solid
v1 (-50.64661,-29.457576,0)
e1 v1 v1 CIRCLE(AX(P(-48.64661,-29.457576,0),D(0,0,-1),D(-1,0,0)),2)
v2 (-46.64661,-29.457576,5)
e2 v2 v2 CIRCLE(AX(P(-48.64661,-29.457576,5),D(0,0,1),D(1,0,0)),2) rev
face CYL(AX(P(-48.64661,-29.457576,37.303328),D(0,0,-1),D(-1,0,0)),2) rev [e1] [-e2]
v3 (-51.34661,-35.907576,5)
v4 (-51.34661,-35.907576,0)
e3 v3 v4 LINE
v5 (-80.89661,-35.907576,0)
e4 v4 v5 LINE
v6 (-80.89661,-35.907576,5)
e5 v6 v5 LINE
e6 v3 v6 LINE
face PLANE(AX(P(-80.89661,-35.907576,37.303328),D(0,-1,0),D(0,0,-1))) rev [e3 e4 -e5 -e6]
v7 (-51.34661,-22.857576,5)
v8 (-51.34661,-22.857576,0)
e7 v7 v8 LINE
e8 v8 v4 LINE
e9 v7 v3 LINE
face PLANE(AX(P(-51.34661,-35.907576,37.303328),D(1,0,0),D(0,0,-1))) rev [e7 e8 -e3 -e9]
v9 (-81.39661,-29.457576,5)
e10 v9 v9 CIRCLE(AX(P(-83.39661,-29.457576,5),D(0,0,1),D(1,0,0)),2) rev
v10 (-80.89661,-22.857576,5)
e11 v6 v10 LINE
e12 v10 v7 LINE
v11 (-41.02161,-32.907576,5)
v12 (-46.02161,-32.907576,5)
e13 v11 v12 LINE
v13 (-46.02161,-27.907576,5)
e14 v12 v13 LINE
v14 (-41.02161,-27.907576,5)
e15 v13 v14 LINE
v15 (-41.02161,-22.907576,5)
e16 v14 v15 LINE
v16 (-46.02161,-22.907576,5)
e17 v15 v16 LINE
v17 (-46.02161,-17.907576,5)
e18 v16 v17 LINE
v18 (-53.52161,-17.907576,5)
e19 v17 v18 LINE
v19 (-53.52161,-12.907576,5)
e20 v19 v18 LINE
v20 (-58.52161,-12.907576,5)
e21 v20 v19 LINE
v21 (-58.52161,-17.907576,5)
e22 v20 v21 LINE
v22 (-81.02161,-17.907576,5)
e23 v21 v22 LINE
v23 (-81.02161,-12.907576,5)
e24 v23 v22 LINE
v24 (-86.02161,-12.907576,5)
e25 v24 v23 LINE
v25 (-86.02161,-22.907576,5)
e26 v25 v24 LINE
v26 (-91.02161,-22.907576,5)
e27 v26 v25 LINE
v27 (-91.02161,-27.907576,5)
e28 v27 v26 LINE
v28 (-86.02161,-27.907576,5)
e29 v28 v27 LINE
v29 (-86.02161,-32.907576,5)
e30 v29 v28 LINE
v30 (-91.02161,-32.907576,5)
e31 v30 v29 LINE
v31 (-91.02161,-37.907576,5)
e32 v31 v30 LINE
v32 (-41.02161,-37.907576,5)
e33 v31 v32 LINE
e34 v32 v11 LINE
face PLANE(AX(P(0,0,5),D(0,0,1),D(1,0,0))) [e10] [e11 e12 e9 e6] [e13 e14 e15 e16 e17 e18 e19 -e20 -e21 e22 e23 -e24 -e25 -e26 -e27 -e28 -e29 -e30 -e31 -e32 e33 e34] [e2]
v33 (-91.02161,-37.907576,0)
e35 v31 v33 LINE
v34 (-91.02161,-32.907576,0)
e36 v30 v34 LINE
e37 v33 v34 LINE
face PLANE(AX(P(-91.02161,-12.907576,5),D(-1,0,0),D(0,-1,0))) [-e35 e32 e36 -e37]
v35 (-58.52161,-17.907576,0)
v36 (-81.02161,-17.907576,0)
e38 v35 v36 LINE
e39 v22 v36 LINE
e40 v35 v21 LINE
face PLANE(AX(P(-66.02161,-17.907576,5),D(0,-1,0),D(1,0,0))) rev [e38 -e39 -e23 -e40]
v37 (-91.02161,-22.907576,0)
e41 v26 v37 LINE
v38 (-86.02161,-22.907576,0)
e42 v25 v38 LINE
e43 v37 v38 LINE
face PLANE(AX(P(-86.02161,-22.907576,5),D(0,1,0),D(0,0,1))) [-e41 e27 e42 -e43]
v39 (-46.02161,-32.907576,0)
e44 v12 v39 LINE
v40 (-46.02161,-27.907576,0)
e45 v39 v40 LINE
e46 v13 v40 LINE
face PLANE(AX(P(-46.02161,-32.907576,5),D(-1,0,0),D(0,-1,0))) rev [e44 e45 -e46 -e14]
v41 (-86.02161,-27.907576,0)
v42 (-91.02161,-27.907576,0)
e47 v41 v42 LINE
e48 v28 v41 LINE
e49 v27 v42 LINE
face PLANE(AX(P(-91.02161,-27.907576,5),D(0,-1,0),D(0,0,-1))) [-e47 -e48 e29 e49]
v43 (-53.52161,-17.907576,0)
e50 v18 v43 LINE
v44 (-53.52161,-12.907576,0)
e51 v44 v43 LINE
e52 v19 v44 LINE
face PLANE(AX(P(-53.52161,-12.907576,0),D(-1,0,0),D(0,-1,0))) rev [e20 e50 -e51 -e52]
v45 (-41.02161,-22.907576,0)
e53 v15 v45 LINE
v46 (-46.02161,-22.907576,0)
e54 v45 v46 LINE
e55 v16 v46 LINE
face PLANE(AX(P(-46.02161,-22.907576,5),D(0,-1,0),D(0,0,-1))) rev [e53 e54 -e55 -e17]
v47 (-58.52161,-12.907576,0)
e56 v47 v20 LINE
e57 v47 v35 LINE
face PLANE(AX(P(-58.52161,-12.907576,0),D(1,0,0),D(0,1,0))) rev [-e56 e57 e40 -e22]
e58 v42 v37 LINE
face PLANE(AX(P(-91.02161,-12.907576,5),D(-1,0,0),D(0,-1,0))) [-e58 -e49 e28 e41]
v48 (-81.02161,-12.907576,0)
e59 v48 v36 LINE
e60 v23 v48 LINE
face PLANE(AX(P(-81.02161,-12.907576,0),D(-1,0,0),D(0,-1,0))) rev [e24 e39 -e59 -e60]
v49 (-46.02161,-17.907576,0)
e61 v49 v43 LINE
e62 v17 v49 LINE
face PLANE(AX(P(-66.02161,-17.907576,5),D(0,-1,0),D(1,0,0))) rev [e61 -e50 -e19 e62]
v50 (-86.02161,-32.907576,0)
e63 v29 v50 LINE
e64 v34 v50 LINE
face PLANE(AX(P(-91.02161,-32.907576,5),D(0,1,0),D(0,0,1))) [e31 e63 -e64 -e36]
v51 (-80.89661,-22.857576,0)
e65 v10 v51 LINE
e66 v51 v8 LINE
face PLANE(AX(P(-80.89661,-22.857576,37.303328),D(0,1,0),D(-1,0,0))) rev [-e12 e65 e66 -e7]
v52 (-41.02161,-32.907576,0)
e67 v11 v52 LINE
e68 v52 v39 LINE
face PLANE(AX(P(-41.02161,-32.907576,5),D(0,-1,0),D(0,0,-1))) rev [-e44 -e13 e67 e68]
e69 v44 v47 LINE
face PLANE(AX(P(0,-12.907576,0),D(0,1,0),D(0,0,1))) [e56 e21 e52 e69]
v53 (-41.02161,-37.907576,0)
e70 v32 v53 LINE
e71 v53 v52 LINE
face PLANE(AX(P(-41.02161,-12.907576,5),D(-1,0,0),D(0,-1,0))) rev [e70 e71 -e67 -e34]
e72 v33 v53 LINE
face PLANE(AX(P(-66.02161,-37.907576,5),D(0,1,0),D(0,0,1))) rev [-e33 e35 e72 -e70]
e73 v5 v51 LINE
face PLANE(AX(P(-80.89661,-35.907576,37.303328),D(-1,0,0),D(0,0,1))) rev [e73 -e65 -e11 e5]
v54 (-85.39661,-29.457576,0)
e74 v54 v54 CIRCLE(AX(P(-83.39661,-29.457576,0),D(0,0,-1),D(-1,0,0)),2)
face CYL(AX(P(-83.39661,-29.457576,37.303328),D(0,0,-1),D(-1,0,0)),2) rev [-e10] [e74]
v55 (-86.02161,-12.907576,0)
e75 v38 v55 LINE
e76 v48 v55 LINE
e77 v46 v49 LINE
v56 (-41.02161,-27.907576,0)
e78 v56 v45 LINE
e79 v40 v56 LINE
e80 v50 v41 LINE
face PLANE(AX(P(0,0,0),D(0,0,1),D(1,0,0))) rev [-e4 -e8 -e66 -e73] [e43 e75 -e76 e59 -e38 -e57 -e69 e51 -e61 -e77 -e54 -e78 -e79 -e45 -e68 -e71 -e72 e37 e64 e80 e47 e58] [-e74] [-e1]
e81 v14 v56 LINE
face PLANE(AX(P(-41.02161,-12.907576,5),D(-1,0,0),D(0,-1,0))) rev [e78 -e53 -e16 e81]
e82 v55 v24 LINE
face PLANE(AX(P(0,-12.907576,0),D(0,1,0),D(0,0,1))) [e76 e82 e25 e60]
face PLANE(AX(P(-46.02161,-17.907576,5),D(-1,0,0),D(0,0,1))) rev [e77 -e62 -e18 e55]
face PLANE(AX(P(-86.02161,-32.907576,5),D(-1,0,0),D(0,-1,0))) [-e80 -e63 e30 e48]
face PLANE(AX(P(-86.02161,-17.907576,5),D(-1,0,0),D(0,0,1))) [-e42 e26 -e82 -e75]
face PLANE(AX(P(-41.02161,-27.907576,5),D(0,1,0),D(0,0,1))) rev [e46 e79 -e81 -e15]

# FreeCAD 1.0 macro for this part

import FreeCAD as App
import Part
import Sketcher
Q = App.Units.Quantity


def add_polygon(sketch, points):
    """Adds a closed chain of lines whose ends are joined by coincident constraints."""
    first, n = sketch.GeometryCount, len(points)
    for a, b in zip(points, points[1:] + points[:1]):
        sketch.addGeometry(Part.LineSegment(App.Vector(*a, 0), App.Vector(*b, 0)), False)
    for i in range(n):
        sketch.addConstraint(Sketcher.Constraint("Coincident", first + i, 2, first + (i + 1) % n, 1))

doc = App.newDocument("Part")
body = doc.addObject("PartDesign::Body", "Body")

sketch1 = doc.addObject("Sketcher::SketchObject", "Sketch")
body.addObject(sketch1)
sketch1.AttachmentSupport = (doc.XY_Plane, [""])
sketch1.MapMode = "FlatFace"
add_polygon(sketch1, [(-66, -13), (-66, -38), (-41, -38), (-41, -13)])
sketch1.addConstraint(Sketcher.Constraint("Vertical", 0))
sketch1.addConstraint(Sketcher.Constraint("Horizontal", 1))
sketch1.addConstraint(Sketcher.Constraint("Vertical", 2))
sketch1.addConstraint(Sketcher.Constraint("Horizontal", 3))
sketch1.addConstraint(Sketcher.Constraint("Equal", 3, 0))
sketch1.addConstraint(Sketcher.Constraint("DistanceX", 1, 1, 1, 2, Q("25 mm")))
sketch1.addConstraint(Sketcher.Constraint("DistanceX", 0, 2, -1, 1, Q("66.02161 mm")))
sketch1.addConstraint(Sketcher.Constraint("DistanceY", 0, 2, -1, 1, Q("37.907576 mm")))
pad1 = doc.addObject("PartDesign::Pad", "Pad")
body.addObject(pad1)
pad1.Profile = sketch1
pad1.Length = 5

sketch2 = doc.addObject("Sketcher::SketchObject", "Sketch001")
body.addObject(sketch2)
sketch2.AttachmentSupport = (doc.XY_Plane, [""])
sketch2.MapMode = "FlatFace"
add_polygon(sketch2, [(-66, -18), (-66, -13), (-41, -13), (-41, -23), (-46, -23), (-46, -18)])
add_polygon(sketch2, [(-41, -28), (-41, -33), (-46, -33), (-46, -28)])
sketch2.addConstraint(Sketcher.Constraint("Vertical", 0))
sketch2.addConstraint(Sketcher.Constraint("Horizontal", 1))
sketch2.addConstraint(Sketcher.Constraint("Vertical", 2))
sketch2.addConstraint(Sketcher.Constraint("Horizontal", 3))
sketch2.addConstraint(Sketcher.Constraint("Vertical", 4))
sketch2.addConstraint(Sketcher.Constraint("Horizontal", 5))
sketch2.addConstraint(Sketcher.Constraint("Vertical", 6))
sketch2.addConstraint(Sketcher.Constraint("Horizontal", 7))
sketch2.addConstraint(Sketcher.Constraint("Vertical", 8))
sketch2.addConstraint(Sketcher.Constraint("Horizontal", 9))
sketch2.addConstraint(Sketcher.Constraint("Vertical", 2, 2, 6, 2))
sketch2.addConstraint(Sketcher.Constraint("Vertical", 4, 2, 7, 2))
sketch2.addConstraint(Sketcher.Constraint("Equal", 9, 0))
sketch2.addConstraint(Sketcher.Constraint("Equal", 0, 4))
sketch2.addConstraint(Sketcher.Constraint("Equal", 4, 6))
sketch2.addConstraint(Sketcher.Constraint("DistanceX", 1, 1, 1, 2, Q("25 mm")))
sketch2.addConstraint(Sketcher.Constraint("DistanceX", 3, 2, 3, 1, Q("5 mm")))
sketch2.addConstraint(Sketcher.Constraint("DistanceY", 6, 2, 2, 2, Q("10 mm")))
sketch2.addConstraint(Sketcher.Constraint("DistanceX", 0, 2, -1, 1, Q("66.02161 mm")))
sketch2.addConstraint(Sketcher.Constraint("DistanceY", 0, 2, -1, 1, Q("12.907576 mm")))
pocket1 = doc.addObject("PartDesign::Pocket", "Pocket")
body.addObject(pocket1)
pocket1.Profile = sketch2
pocket1.Length = 5
pocket1.Reversed = True
doc.recompute()

datumplane = doc.addObject("PartDesign::Plane", "DatumPlane")
body.addObject(datumplane)
datumplane.AttachmentSupport = (doc.YZ_Plane, [""])
datumplane.MapMode = "FlatFace"
datumplane.AttachmentOffset = App.Placement(App.Vector(0, 0, -66.02161), App.Rotation())
mirrored = doc.addObject("PartDesign::Mirrored", "Mirrored")
body.addObject(mirrored)
mirrored.Originals = [pad1, pocket1]
mirrored.MirrorPlane = (datumplane, [""])
body.Tip = mirrored

sketch3 = doc.addObject("Sketcher::SketchObject", "Sketch002")
body.addObject(sketch3)
sketch3.AttachmentSupport = (doc.XY_Plane, [""])
sketch3.MapMode = "FlatFace"
sketch3.addGeometry(Part.Circle(App.Vector(-83.4, -29.5, 0), App.Vector(0, 0, 1), 2), False)
sketch3.addGeometry(Part.Circle(App.Vector(-48.6, -29.5, 0), App.Vector(0, 0, 1), 2), False)
add_polygon(sketch3, [(-51.3, -22.9), (-51.3, -35.9), (-80.9, -35.9), (-80.9, -22.9)])
sketch3.addConstraint(Sketcher.Constraint("Vertical", 2))
sketch3.addConstraint(Sketcher.Constraint("Horizontal", 3))
sketch3.addConstraint(Sketcher.Constraint("Vertical", 4))
sketch3.addConstraint(Sketcher.Constraint("Horizontal", 5))
sketch3.addConstraint(Sketcher.Constraint("Equal", 0, 1))
sketch3.addConstraint(Sketcher.Constraint("Horizontal", 0, 3, 1, 3))
sketch3.addConstraint(Sketcher.Constraint("Diameter", 0, Q("4 mm")))
sketch3.addConstraint(Sketcher.Constraint("DistanceX", 3, 2, 3, 1, Q("29.55 mm")))
sketch3.addConstraint(Sketcher.Constraint("DistanceY", 2, 2, 2, 1, Q("13.05 mm")))
sketch3.addConstraint(Sketcher.Constraint("DistanceX", 2, 2, 1, 3, Q("2.7 mm")))
sketch3.addConstraint(Sketcher.Constraint("DistanceX", 0, 3, 3, 2, Q("2.5 mm")))
sketch3.addConstraint(Sketcher.Constraint("DistanceY", 0, 3, 4, 2, Q("6.6 mm")))
sketch3.addConstraint(Sketcher.Constraint("DistanceX", 0, 3, -1, 1, Q("83.39661 mm")))
sketch3.addConstraint(Sketcher.Constraint("DistanceY", 0, 3, -1, 1, Q("29.457576 mm")))
pocket2 = doc.addObject("PartDesign::Pocket", "Pocket001")
body.addObject(pocket2)
pocket2.Profile = sketch3
pocket2.Length = 5
pocket2.Reversed = True

sketch4 = doc.addObject("Sketcher::SketchObject", "Sketch003")
body.addObject(sketch4)
sketch4.AttachmentSupport = (doc.XZ_Plane, [""])
sketch4.MapMode = "FlatFace"
sketch4.AttachmentOffset = App.Placement(App.Vector(0, 0, 17.907576), App.Rotation())
add_polygon(sketch4, [(-86, 0), (-86, 5), (-81, 5), (-81, 0)])
add_polygon(sketch4, [(-59, 0), (-59, 5), (-54, 5), (-54, 0)])
sketch4.addConstraint(Sketcher.Constraint("Vertical", 0))
sketch4.addConstraint(Sketcher.Constraint("Horizontal", 1))
sketch4.addConstraint(Sketcher.Constraint("Vertical", 2))
sketch4.addConstraint(Sketcher.Constraint("Horizontal", 3))
sketch4.addConstraint(Sketcher.Constraint("Vertical", 4))
sketch4.addConstraint(Sketcher.Constraint("Horizontal", 5))
sketch4.addConstraint(Sketcher.Constraint("Vertical", 6))
sketch4.addConstraint(Sketcher.Constraint("Horizontal", 7))
sketch4.addConstraint(Sketcher.Constraint("PointOnObject", 2, 2, -1))
sketch4.addConstraint(Sketcher.Constraint("PointOnObject", 6, 2, -1))
sketch4.addConstraint(Sketcher.Constraint("Horizontal", 1, 2, 4, 2))
sketch4.addConstraint(Sketcher.Constraint("Equal", 3, 5))
sketch4.addConstraint(Sketcher.Constraint("Equal", 7, 0))
sketch4.addConstraint(Sketcher.Constraint("DistanceX", 1, 1, 1, 2, Q("5 mm")))
sketch4.addConstraint(Sketcher.Constraint("DistanceX", 1, 2, 4, 2, Q("22.5 mm")))
sketch4.addConstraint(Sketcher.Constraint("DistanceX", 0, 2, -1, 1, Q("86.02161 mm")))
pad2 = doc.addObject("PartDesign::Pad", "Pad001")
body.addObject(pad2)
pad2.Profile = sketch4
pad2.Length = 5
pad2.Reversed = True

doc.recompute()
